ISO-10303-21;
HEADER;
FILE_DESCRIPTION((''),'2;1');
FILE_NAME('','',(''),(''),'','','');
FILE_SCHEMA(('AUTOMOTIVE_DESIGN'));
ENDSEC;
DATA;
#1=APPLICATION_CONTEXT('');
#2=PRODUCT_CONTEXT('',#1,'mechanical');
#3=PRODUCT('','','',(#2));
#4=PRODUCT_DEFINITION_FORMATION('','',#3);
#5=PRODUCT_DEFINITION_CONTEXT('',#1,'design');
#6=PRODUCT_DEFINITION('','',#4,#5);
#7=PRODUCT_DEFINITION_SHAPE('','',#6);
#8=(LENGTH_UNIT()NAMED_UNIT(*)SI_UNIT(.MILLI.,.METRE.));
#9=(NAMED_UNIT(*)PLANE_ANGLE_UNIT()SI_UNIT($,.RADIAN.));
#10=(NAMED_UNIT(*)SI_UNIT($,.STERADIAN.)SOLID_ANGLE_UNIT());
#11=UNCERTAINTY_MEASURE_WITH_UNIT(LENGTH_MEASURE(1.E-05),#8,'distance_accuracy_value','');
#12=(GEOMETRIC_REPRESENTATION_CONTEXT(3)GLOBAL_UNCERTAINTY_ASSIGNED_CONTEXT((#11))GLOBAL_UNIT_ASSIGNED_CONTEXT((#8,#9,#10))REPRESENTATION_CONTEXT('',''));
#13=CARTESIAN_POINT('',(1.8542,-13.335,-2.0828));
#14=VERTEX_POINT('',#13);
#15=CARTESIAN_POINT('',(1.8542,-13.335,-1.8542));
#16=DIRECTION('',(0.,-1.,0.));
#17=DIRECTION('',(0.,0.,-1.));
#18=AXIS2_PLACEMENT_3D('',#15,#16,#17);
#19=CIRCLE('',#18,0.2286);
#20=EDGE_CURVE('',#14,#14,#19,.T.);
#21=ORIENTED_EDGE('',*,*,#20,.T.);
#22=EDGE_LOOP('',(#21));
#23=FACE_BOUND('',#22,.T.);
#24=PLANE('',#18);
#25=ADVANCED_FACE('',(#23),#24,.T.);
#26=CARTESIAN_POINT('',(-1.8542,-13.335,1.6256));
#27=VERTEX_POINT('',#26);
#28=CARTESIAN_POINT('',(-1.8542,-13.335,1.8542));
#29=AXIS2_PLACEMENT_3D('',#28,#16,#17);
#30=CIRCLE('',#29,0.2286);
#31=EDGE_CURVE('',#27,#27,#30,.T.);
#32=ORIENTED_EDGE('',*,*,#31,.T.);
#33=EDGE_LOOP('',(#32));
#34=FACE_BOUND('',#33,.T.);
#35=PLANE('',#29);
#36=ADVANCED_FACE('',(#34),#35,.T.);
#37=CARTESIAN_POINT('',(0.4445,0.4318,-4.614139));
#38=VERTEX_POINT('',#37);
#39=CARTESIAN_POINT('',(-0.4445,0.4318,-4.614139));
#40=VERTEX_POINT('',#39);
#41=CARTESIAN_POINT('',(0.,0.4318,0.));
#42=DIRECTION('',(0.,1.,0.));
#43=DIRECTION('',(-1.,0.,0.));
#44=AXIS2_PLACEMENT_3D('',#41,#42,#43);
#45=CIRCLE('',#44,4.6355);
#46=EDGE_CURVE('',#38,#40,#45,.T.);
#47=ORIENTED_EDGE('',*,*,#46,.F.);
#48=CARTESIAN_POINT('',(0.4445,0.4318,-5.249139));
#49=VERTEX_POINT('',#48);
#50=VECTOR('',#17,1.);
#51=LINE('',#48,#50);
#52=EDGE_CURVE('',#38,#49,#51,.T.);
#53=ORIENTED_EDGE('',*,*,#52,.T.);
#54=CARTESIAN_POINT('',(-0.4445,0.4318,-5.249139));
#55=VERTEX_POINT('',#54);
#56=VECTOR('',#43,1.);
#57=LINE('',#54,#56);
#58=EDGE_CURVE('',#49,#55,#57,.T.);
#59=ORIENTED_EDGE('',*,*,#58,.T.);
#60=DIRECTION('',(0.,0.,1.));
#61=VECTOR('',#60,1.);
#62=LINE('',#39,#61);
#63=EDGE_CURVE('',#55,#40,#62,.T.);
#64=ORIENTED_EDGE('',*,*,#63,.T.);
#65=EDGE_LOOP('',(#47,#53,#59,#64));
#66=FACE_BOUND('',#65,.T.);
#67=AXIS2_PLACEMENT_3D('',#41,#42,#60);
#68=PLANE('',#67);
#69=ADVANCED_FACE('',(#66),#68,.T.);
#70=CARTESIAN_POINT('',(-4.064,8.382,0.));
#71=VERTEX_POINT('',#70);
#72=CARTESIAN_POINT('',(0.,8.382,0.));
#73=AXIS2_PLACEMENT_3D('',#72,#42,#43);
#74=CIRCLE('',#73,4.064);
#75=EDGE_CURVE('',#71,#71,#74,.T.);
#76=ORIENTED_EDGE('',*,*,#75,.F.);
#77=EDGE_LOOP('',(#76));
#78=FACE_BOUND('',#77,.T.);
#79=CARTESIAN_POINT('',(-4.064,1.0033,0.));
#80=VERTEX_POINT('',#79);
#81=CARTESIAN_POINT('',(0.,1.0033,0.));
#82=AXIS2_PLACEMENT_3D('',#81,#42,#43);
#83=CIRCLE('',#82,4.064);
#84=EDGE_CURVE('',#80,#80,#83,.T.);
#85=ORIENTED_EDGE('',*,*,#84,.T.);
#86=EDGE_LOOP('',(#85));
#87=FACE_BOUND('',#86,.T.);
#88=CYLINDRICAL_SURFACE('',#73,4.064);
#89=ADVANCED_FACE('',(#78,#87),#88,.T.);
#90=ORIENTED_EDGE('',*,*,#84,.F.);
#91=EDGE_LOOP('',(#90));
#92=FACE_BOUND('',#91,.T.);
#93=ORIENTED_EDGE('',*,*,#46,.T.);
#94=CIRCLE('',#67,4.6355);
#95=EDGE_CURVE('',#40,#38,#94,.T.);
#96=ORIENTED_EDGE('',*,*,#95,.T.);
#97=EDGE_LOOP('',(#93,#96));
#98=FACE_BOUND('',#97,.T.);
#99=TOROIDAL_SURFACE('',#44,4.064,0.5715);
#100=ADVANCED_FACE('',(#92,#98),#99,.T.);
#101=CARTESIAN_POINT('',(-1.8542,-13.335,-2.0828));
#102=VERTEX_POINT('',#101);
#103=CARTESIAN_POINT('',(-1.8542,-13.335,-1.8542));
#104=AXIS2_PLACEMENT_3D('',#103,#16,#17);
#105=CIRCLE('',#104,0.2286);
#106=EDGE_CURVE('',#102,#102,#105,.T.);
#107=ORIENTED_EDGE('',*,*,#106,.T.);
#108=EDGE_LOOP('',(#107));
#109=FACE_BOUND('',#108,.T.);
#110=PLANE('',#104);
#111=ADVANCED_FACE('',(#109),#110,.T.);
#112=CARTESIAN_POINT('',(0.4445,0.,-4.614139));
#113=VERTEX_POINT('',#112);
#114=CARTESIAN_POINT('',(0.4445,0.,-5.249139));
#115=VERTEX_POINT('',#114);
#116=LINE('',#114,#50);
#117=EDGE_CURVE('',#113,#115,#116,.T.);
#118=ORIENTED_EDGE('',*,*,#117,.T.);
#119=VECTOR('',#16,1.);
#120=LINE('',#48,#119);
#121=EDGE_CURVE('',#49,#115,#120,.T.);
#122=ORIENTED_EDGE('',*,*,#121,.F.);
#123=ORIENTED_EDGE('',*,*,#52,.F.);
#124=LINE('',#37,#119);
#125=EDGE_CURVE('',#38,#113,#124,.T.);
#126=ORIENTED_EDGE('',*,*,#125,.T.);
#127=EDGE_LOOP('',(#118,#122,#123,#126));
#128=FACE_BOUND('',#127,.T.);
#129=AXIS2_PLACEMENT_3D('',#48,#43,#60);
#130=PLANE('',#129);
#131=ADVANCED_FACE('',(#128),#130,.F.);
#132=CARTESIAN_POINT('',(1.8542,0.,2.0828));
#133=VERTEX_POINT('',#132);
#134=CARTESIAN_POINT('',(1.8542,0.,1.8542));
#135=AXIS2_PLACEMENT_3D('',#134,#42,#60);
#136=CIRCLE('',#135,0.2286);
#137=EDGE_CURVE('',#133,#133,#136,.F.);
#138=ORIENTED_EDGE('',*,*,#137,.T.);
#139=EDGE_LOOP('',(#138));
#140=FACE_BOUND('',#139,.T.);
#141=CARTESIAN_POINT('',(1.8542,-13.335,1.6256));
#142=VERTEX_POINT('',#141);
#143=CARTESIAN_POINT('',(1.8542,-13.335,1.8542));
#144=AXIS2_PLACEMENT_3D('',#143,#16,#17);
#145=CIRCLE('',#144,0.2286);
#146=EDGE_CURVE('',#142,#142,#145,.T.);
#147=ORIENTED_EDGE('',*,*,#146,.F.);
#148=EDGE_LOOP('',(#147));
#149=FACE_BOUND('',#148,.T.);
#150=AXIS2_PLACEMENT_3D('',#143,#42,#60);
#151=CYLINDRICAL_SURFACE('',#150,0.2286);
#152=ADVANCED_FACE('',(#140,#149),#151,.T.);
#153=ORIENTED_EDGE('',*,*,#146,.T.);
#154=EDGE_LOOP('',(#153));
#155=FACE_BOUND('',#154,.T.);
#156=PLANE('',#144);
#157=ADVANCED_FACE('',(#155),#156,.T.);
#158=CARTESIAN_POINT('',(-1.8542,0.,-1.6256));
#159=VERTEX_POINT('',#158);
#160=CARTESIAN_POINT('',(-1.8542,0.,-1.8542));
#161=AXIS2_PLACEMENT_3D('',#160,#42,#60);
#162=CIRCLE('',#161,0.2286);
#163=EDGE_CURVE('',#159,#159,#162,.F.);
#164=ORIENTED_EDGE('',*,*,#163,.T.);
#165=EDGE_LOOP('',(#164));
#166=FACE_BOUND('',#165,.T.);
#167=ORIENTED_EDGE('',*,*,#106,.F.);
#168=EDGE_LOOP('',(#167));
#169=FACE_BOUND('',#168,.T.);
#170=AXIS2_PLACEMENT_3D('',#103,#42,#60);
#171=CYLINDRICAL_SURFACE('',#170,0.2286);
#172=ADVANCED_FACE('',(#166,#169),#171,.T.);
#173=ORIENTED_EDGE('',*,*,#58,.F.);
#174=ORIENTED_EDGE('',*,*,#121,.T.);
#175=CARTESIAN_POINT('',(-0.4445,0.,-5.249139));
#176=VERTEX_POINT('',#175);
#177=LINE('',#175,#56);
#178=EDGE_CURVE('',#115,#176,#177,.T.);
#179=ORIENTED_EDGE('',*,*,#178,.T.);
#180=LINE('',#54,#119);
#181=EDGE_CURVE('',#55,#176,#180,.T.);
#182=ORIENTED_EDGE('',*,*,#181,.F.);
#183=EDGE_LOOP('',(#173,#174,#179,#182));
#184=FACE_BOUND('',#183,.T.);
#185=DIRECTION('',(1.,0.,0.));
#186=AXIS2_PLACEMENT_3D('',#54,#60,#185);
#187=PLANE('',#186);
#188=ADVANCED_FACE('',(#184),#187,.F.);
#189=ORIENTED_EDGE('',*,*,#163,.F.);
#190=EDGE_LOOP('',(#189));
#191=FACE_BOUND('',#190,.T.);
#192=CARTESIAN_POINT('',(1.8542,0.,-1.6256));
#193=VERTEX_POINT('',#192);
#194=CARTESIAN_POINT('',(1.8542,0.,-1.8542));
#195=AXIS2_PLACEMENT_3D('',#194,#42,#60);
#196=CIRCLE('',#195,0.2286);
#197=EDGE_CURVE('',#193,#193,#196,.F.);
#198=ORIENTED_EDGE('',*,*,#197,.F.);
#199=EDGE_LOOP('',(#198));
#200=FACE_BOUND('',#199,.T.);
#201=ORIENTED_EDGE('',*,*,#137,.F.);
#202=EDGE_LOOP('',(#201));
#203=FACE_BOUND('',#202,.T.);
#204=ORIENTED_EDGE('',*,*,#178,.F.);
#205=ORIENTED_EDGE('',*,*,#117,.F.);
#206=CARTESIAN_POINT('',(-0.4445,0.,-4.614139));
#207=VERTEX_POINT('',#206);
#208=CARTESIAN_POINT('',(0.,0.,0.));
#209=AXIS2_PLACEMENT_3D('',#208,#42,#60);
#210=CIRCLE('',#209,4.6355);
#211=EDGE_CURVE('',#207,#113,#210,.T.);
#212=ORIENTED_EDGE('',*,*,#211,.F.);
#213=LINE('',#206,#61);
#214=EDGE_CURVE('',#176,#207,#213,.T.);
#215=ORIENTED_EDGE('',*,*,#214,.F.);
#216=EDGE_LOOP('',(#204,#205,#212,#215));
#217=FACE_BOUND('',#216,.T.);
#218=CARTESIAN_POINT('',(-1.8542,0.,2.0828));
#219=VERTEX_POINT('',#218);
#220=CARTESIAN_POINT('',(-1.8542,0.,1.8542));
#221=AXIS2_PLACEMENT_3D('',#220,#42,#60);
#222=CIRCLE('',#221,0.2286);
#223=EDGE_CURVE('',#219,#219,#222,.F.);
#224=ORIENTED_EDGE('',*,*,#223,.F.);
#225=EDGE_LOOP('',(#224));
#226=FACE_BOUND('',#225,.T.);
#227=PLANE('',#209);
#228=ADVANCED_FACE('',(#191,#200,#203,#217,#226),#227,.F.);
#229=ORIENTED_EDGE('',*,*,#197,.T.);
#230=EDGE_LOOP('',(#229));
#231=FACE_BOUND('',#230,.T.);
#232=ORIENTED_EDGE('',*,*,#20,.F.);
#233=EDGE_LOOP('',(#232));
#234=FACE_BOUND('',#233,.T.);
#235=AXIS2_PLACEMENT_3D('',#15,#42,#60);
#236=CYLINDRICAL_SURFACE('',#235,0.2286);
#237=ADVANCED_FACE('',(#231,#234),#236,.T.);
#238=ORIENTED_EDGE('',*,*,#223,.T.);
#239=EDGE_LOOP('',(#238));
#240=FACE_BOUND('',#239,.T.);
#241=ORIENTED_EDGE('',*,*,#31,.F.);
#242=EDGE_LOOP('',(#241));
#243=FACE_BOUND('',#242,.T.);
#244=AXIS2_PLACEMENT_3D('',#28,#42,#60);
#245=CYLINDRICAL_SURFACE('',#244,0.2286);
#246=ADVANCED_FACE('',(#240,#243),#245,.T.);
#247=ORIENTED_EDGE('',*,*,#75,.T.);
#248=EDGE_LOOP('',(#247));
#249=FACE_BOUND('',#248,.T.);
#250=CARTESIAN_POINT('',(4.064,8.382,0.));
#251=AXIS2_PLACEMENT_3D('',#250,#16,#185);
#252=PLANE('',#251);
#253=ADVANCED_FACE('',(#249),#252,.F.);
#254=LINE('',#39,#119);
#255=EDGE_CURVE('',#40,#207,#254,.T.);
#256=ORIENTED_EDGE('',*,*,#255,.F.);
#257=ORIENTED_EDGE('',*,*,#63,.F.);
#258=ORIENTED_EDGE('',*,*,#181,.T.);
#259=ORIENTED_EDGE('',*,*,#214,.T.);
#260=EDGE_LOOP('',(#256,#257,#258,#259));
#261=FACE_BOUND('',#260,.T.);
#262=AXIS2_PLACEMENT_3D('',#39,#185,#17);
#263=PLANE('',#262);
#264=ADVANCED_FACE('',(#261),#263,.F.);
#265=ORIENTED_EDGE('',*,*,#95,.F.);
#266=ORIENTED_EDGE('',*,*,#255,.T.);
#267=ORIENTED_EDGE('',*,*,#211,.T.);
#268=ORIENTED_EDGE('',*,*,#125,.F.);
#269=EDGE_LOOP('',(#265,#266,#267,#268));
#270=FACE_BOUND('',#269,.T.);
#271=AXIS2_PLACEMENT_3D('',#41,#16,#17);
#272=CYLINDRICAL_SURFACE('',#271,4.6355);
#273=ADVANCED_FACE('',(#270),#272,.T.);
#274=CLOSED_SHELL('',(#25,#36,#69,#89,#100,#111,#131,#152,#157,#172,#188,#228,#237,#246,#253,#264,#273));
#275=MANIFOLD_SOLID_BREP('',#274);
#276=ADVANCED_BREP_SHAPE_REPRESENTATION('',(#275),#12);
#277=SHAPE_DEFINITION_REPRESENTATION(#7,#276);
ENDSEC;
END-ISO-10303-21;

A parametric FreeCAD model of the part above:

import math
import FreeCAD as App
import Part
import Sketcher
from FreeCAD import Vector
Q = App.Units.Quantity

doc = App.newDocument("Part")
body = doc.addObject("PartDesign::Body", "Body")

sketch1 = body.newObject("Sketcher::SketchObject", "Sketch")
sketch1.AttachmentSupport = (doc.getObject("XZ_Plane"), [""])
sketch1.MapMode = "FlatFace"
sketch1.addGeometry(Part.LineSegment(Vector(-0.4, -5.2, 0), Vector(-0.4, -4.6, 0)), False)
sketch1.addGeometry(Part.ArcOfCircle(Part.Circle(Vector(0, 0, 0), Vector(0, 0, 1), 4.6), math.radians(-84), math.radians(264)), False)
sketch1.addGeometry(Part.LineSegment(Vector(0.4, -4.6, 0), Vector(0.4, -5.2, 0)), False)
sketch1.addGeometry(Part.LineSegment(Vector(0.4, -5.2, 0), Vector(-0.4, -5.2, 0)), False)
sketch1.addConstraint(Sketcher.Constraint("Coincident", 0, 2, 1, 2))
sketch1.addConstraint(Sketcher.Constraint("Coincident", 1, 1, 2, 1))
sketch1.addConstraint(Sketcher.Constraint("Coincident", 2, 2, 3, 1))
sketch1.addConstraint(Sketcher.Constraint("Coincident", 3, 2, 0, 1))
sketch1.addConstraint(Sketcher.Constraint("Vertical", 0))
sketch1.addConstraint(Sketcher.Constraint("Vertical", 2))
sketch1.addConstraint(Sketcher.Constraint("Horizontal", 3))
sketch1.addConstraint(Sketcher.Constraint("Coincident", 1, 3, -1, 1))
sketch1.addConstraint(Sketcher.Constraint("Horizontal", 0, 2, 1, 1))
sketch1.addConstraint(Sketcher.Constraint("Radius", 1, Q("0.1825 in")))
sketch1.addConstraint(Sketcher.Constraint("DistanceX", 3, 2, 3, 1, Q("0.035 in")))
sketch1.addConstraint(Sketcher.Constraint("DistanceY", 0, 1, 0, 2, Q("0.025 in")))
pad1 = body.newObject("PartDesign::Pad", "Pad")
pad1.Profile = sketch1
pad1.Length = Q("0.017 in")
pad1.Reversed = True

sketch2 = body.newObject("Sketcher::SketchObject", "Sketch001")
sketch2.AttachmentSupport = (doc.getObject("XY_Plane"), [""])
sketch2.MapMode = "FlatFace"
sketch2.addGeometry(Part.LineSegment(Vector(4.1, 1, 0), Vector(4.1, 8.4, 0)), False)
sketch2.addGeometry(Part.LineSegment(Vector(4.1, 8.4, 0), Vector(0, 8.4, 0)), False)
sketch2.addGeometry(Part.LineSegment(Vector(0, 8.4, 0), Vector(0, 0.4, 0)), False)
sketch2.addGeometry(Part.LineSegment(Vector(0, 0.4, 0), Vector(4.6, 0.4, 0)), False)
sketch2.addGeometry(Part.ArcOfCircle(Part.Circle(Vector(4.1, 0.4, 0), Vector(0, 0, 1), 0.6), math.radians(0), math.radians(90)), False)
sketch2.addConstraint(Sketcher.Constraint("Coincident", 0, 2, 1, 1))
sketch2.addConstraint(Sketcher.Constraint("Coincident", 1, 2, 2, 1))
sketch2.addConstraint(Sketcher.Constraint("Coincident", 2, 2, 3, 1))
sketch2.addConstraint(Sketcher.Constraint("Coincident", 3, 2, 4, 1))
sketch2.addConstraint(Sketcher.Constraint("Coincident", 4, 2, 0, 1))
sketch2.addConstraint(Sketcher.Constraint("Vertical", 0))
sketch2.addConstraint(Sketcher.Constraint("Horizontal", 1))
sketch2.addConstraint(Sketcher.Constraint("Vertical", 2))
sketch2.addConstraint(Sketcher.Constraint("Horizontal", 3))
sketch2.addConstraint(Sketcher.Constraint("PointOnObject", 1, 2, -2))
sketch2.addConstraint(Sketcher.Constraint("Horizontal", 4, 3, 2, 2))
sketch2.addConstraint(Sketcher.Constraint("Vertical", 4, 3, 0, 2))
sketch2.addConstraint(Sketcher.Constraint("DistanceX", 1, 2, 1, 1, Q("0.16 in")))
sketch2.addConstraint(Sketcher.Constraint("Radius", 4, Q("0.0225 in")))
sketch2.addConstraint(Sketcher.Constraint("DistanceY", 2, 2, 2, 1, Q("0.313 in")))
sketch2.addConstraint(Sketcher.Constraint("DistanceY", -1, 1, 0, 2, Q("0.33 in")))
revolution = body.newObject("PartDesign::Revolution", "Revolution")
revolution.Profile = sketch2
revolution.ReferenceAxis = (sketch2, ["V_Axis"])
revolution.Angle = 360

sketch3 = body.newObject("Sketcher::SketchObject", "Sketch002")
sketch3.AttachmentSupport = (doc.getObject("XZ_Plane"), [""])
sketch3.MapMode = "FlatFace"
sketch3.addGeometry(Part.Circle(Vector(-1.85, -1.85, 0), Vector(0, 0, 1), 0.23), False)
sketch3.addGeometry(Part.Circle(Vector(1.85, -1.85, 0), Vector(0, 0, 1), 0.23), False)
sketch3.addGeometry(Part.Circle(Vector(1.85, 1.85, 0), Vector(0, 0, 1), 0.23), False)
sketch3.addGeometry(Part.Circle(Vector(-1.85, 1.85, 0), Vector(0, 0, 1), 0.23), False)
sketch3.addConstraint(Sketcher.Constraint("Equal", 0, 1))
sketch3.addConstraint(Sketcher.Constraint("Equal", 1, 2))
sketch3.addConstraint(Sketcher.Constraint("Equal", 2, 3))
sketch3.addConstraint(Sketcher.Constraint("Symmetric", 0, 3, 2, 3, -1, 1))
sketch3.addConstraint(Sketcher.Constraint("Symmetric", 1, 3, 3, 3, -1, 1))
sketch3.addConstraint(Sketcher.Constraint("Symmetric", 0, 3, 1, 3, -2))
sketch3.addConstraint(Sketcher.Constraint("Diameter", 0, Q("0.018 in")))
sketch3.addConstraint(Sketcher.Constraint("DistanceX", 0, 3, -1, 1, Q("0.073 in")))
sketch3.addConstraint(Sketcher.Constraint("DistanceY", 0, 3, -1, 1, Q("0.073 in")))
pad2 = body.newObject("PartDesign::Pad", "Pad001")
pad2.Profile = sketch3
pad2.Length = Q("0.525 in")

doc.recompute()
